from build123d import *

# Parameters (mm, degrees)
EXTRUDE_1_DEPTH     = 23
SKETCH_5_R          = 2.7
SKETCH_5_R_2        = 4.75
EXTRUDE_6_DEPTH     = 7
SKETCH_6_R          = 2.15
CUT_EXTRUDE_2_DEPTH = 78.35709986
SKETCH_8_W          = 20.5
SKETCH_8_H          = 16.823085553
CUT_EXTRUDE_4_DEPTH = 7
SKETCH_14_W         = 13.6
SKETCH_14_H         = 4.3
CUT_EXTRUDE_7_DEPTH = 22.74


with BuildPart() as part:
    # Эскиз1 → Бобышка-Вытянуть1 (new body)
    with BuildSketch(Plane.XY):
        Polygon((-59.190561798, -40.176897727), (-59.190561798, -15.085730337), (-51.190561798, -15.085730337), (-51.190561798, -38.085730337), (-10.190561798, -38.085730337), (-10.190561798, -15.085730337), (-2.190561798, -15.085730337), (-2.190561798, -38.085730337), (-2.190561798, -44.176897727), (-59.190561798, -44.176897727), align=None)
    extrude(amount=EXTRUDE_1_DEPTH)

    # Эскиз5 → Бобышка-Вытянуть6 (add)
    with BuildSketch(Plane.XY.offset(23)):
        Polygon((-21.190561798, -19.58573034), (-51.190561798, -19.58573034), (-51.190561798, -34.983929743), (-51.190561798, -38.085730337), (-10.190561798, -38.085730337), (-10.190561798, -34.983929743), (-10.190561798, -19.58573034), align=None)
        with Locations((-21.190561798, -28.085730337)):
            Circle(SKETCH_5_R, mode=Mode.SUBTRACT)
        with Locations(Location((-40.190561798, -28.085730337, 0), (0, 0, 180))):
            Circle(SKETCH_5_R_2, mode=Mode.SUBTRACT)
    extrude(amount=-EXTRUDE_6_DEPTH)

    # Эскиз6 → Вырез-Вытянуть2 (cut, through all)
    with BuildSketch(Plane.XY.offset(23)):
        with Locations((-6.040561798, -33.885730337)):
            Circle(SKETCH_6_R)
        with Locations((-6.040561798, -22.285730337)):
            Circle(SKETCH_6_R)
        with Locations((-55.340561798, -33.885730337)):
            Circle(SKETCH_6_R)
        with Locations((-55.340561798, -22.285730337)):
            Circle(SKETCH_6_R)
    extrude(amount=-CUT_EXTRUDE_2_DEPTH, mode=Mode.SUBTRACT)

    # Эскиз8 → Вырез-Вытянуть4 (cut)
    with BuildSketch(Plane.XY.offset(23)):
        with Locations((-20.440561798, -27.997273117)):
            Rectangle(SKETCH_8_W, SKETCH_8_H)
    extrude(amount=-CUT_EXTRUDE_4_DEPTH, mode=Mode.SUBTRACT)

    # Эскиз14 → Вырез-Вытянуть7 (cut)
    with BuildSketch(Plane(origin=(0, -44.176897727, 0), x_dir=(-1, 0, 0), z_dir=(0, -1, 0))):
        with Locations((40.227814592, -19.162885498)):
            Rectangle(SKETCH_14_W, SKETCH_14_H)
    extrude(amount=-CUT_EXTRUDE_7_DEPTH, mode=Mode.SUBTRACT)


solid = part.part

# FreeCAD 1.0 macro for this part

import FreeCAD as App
import Part
import Sketcher
from FreeCAD import Vector
Q = App.Units.Quantity

doc = App.newDocument("Part")
body = doc.addObject("PartDesign::Body", "Body")

# Sketch on XY plane
sketch1 = doc.addObject("Sketcher::SketchObject", "Sketch")
body.addObject(sketch1)
sketch1.AttachmentSupport = (doc.XY_Plane, [""])
sketch1.MapMode = "FlatFace"
sketch1.addGeometry(Part.LineSegment(Vector(-59.190562, -15.08573, 0), Vector(-59.190562, -44.176898, 0)), False)
sketch1.addGeometry(Part.LineSegment(Vector(-59.190562, -44.176898, 0), Vector(-2.190562, -44.176898, 0)), False)
sketch1.addGeometry(Part.LineSegment(Vector(-2.190562, -44.176898, 0), Vector(-2.190562, -15.08573, 0)), False)
sketch1.addGeometry(Part.LineSegment(Vector(-2.190562, -15.08573, 0), Vector(-10.190562, -15.08573, 0)), False)
sketch1.addGeometry(Part.LineSegment(Vector(-10.190562, -15.08573, 0), Vector(-10.190562, -38.08573, 0)), False)
sketch1.addGeometry(Part.LineSegment(Vector(-10.190562, -38.08573, 0), Vector(-51.190562, -38.08573, 0)), False)
sketch1.addGeometry(Part.LineSegment(Vector(-51.190562, -38.08573, 0), Vector(-51.190562, -15.08573, 0)), False)
sketch1.addGeometry(Part.LineSegment(Vector(-51.190562, -15.08573, 0), Vector(-59.190562, -15.08573, 0)), False)
sketch1.addConstraint(Sketcher.Constraint("Coincident", 0, 2, 1, 1))
sketch1.addConstraint(Sketcher.Constraint("Coincident", 1, 2, 2, 1))
sketch1.addConstraint(Sketcher.Constraint("Coincident", 2, 2, 3, 1))
sketch1.addConstraint(Sketcher.Constraint("Coincident", 3, 2, 4, 1))
sketch1.addConstraint(Sketcher.Constraint("Coincident", 4, 2, 5, 1))
sketch1.addConstraint(Sketcher.Constraint("Coincident", 5, 2, 6, 1))
sketch1.addConstraint(Sketcher.Constraint("Coincident", 6, 2, 7, 1))
sketch1.addConstraint(Sketcher.Constraint("Coincident", 7, 2, 0, 1))
sketch1.addConstraint(Sketcher.Constraint("Vertical", 0))
sketch1.addConstraint(Sketcher.Constraint("Horizontal", 1))
sketch1.addConstraint(Sketcher.Constraint("Vertical", 2))
sketch1.addConstraint(Sketcher.Constraint("Horizontal", 3))
sketch1.addConstraint(Sketcher.Constraint("Vertical", 4))
sketch1.addConstraint(Sketcher.Constraint("Horizontal", 5))
sketch1.addConstraint(Sketcher.Constraint("Vertical", 6))
sketch1.addConstraint(Sketcher.Constraint("Horizontal", 7))
sketch1.addConstraint(Sketcher.Constraint("Horizontal", 3, 2, 6, 2))
sketch1.addConstraint(Sketcher.Constraint("Equal", 3, 7))
sketch1.addConstraint(Sketcher.Constraint("DistanceX", 1, 1, 1, 2, Q("57 mm")))
sketch1.addConstraint(Sketcher.Constraint("DistanceX", 3, 2, 3, 1, Q("8 mm")))
sketch1.addConstraint(Sketcher.Constraint("DistanceY", 4, 2, 4, 1, Q("23 mm")))
sketch1.addConstraint(Sketcher.Constraint("DistanceY", 0, 2, 0, 1, Q("29.091167 mm")))
sketch1.addConstraint(Sketcher.Constraint("DistanceX", 0, 2, -1, 1, Q("59.190562 mm")))
sketch1.addConstraint(Sketcher.Constraint("DistanceY", 2, 2, -1, 1, Q("15.08573 mm")))
pad1 = doc.addObject("PartDesign::Pad", "Pad")
body.addObject(pad1)
pad1.Profile = sketch1
pad1.Length = 23

# Sketch on XY plane
sketch2 = doc.addObject("Sketcher::SketchObject", "Sketch001")
body.addObject(sketch2)
sketch2.AttachmentSupport = (doc.XY_Plane, [""])
sketch2.MapMode = "FlatFace"
sketch2.AttachmentOffset = App.Placement(Vector(0, 0, 23), App.Rotation())
sketch2.addGeometry(Part.LineSegment(Vector(-51.190562, -19.58573, 0), Vector(-51.190562, -38.08573, 0)), False)
sketch2.addGeometry(Part.LineSegment(Vector(-51.190562, -38.08573, 0), Vector(-10.190562, -38.08573, 0)), False)
sketch2.addGeometry(Part.LineSegment(Vector(-10.190562, -38.08573, 0), Vector(-10.190562, -19.58573, 0)), False)
sketch2.addGeometry(Part.LineSegment(Vector(-10.190562, -19.58573, 0), Vector(-51.190562, -19.58573, 0)), False)
sketch2.addGeometry(Part.Circle(Vector(-40.190562, -28.08573, 0), Vector(0, 0, 1), 4.75), False)
sketch2.addGeometry(Part.Circle(Vector(-21.190562, -28.08573, 0), Vector(0, 0, 1), 2.7), False)
sketch2.addConstraint(Sketcher.Constraint("Coincident", 0, 2, 1, 1))
sketch2.addConstraint(Sketcher.Constraint("Coincident", 1, 2, 2, 1))
sketch2.addConstraint(Sketcher.Constraint("Coincident", 2, 2, 3, 1))
sketch2.addConstraint(Sketcher.Constraint("Coincident", 3, 2, 0, 1))
sketch2.addConstraint(Sketcher.Constraint("Vertical", 0))
sketch2.addConstraint(Sketcher.Constraint("Horizontal", 1))
sketch2.addConstraint(Sketcher.Constraint("Vertical", 2))
sketch2.addConstraint(Sketcher.Constraint("Horizontal", 3))
sketch2.addConstraint(Sketcher.Constraint("Horizontal", 4, 3, 5, 3))
sketch2.addConstraint(Sketcher.Constraint("Diameter", 4, Q("9.5 mm")))
sketch2.addConstraint(Sketcher.Constraint("Diameter", 5, Q("5.4 mm")))
sketch2.addConstraint(Sketcher.Constraint("DistanceX", 1, 1, 1, 2, Q("41 mm")))
sketch2.addConstraint(Sketcher.Constraint("DistanceY", 0, 2, 0, 1, Q("18.5 mm")))
sketch2.addConstraint(Sketcher.Constraint("DistanceX", 4, 3, 5, 3, Q("19 mm")))
sketch2.addConstraint(Sketcher.Constraint("DistanceX", 0, 2, 4, 3, Q("11 mm")))
sketch2.addConstraint(Sketcher.Constraint("DistanceY", 0, 2, 4, 3, Q("10 mm")))
sketch2.addConstraint(Sketcher.Constraint("DistanceX", 4, 3, -1, 1, Q("40.190562 mm")))
sketch2.addConstraint(Sketcher.Constraint("DistanceY", 4, 3, -1, 1, Q("28.08573 mm")))
pad2 = doc.addObject("PartDesign::Pad", "Pad001")
body.addObject(pad2)
pad2.Profile = sketch2
pad2.Length = 7
pad2.Reversed = True

# Sketch on XY plane
sketch3 = doc.addObject("Sketcher::SketchObject", "Sketch002")
body.addObject(sketch3)
sketch3.AttachmentSupport = (doc.XY_Plane, [""])
sketch3.MapMode = "FlatFace"
sketch3.AttachmentOffset = App.Placement(Vector(0, 0, 23), App.Rotation())
sketch3.addGeometry(Part.Circle(Vector(-6.040562, -33.88573, 0), Vector(0, 0, 1), 2.15), False)
sketch3.addGeometry(Part.Circle(Vector(-6.040562, -22.28573, 0), Vector(0, 0, 1), 2.15), False)
sketch3.addGeometry(Part.Circle(Vector(-55.340562, -33.88573, 0), Vector(0, 0, 1), 2.15), False)
sketch3.addGeometry(Part.Circle(Vector(-55.340562, -22.28573, 0), Vector(0, 0, 1), 2.15), False)
sketch3.addConstraint(Sketcher.Constraint("Equal", 0, 1))
sketch3.addConstraint(Sketcher.Constraint("Equal", 1, 2))
sketch3.addConstraint(Sketcher.Constraint("Equal", 2, 3))
sketch3.addConstraint(Sketcher.Constraint("Horizontal", 0, 3, 2, 3))
sketch3.addConstraint(Sketcher.Constraint("Horizontal", 1, 3, 3, 3))
sketch3.addConstraint(Sketcher.Constraint("Vertical", 0, 3, 1, 3))
sketch3.addConstraint(Sketcher.Constraint("Vertical", 2, 3, 3, 3))
sketch3.addConstraint(Sketcher.Constraint("Diameter", 0, Q("4.3 mm")))
sketch3.addConstraint(Sketcher.Constraint("DistanceY", 0, 3, 1, 3, Q("11.6 mm")))
sketch3.addConstraint(Sketcher.Constraint("DistanceX", 2, 3, 0, 3, Q("49.3 mm")))
sketch3.addConstraint(Sketcher.Constraint("DistanceX", 0, 3, -1, 1, Q("6.040562 mm")))
sketch3.addConstraint(Sketcher.Constraint("DistanceY", 0, 3, -1, 1, Q("33.88573 mm")))
pocket1 = doc.addObject("PartDesign::Pocket", "Pocket")
body.addObject(pocket1)
pocket1.Profile = sketch3
pocket1.Type = "ThroughAll"

# Sketch on XY plane
sketch4 = doc.addObject("Sketcher::SketchObject", "Sketch003")
body.addObject(sketch4)
sketch4.AttachmentSupport = (doc.XY_Plane, [""])
sketch4.MapMode = "FlatFace"
sketch4.AttachmentOffset = App.Placement(Vector(0, 0, 23), App.Rotation())
sketch4.addGeometry(Part.LineSegment(Vector(-30.690562, -19.58573, 0), Vector(-30.690562, -36.408816, 0)), False)
sketch4.addGeometry(Part.LineSegment(Vector(-30.690562, -36.408816, 0), Vector(-10.190562, -36.408816, 0)), False)
sketch4.addGeometry(Part.LineSegment(Vector(-10.190562, -36.408816, 0), Vector(-10.190562, -19.58573, 0)), False)
sketch4.addGeometry(Part.LineSegment(Vector(-10.190562, -19.58573, 0), Vector(-30.690562, -19.58573, 0)), False)
sketch4.addConstraint(Sketcher.Constraint("Coincident", 0, 2, 1, 1))
sketch4.addConstraint(Sketcher.Constraint("Coincident", 1, 2, 2, 1))
sketch4.addConstraint(Sketcher.Constraint("Coincident", 2, 2, 3, 1))
sketch4.addConstraint(Sketcher.Constraint("Coincident", 3, 2, 0, 1))
sketch4.addConstraint(Sketcher.Constraint("Vertical", 0))
sketch4.addConstraint(Sketcher.Constraint("Horizontal", 1))
sketch4.addConstraint(Sketcher.Constraint("Vertical", 2))
sketch4.addConstraint(Sketcher.Constraint("Horizontal", 3))
sketch4.addConstraint(Sketcher.Constraint("DistanceX", 1, 1, 1, 2, Q("20.5 mm")))
sketch4.addConstraint(Sketcher.Constraint("DistanceY", 0, 2, 0, 1, Q("16.823086 mm")))
sketch4.addConstraint(Sketcher.Constraint("DistanceX", 0, 2, -1, 1, Q("30.690562 mm")))
sketch4.addConstraint(Sketcher.Constraint("DistanceY", 2, 2, -1, 1, Q("19.58573 mm")))
pocket2 = doc.addObject("PartDesign::Pocket", "Pocket001")
body.addObject(pocket2)
pocket2.Profile = sketch4
pocket2.Length = 7

# Sketch on XZ plane
sketch5 = doc.addObject("Sketcher::SketchObject", "Sketch004")
body.addObject(sketch5)
sketch5.AttachmentSupport = (doc.XZ_Plane, [""])
sketch5.MapMode = "FlatFace"
sketch5.AttachmentOffset = App.Placement(Vector(0, 0, 44.176898), App.Rotation())
sketch5.addGeometry(Part.LineSegment(Vector(-33.427815, 17.012885, 0), Vector(-33.427815, 21.312885, 0)), False)
sketch5.addGeometry(Part.LineSegment(Vector(-33.427815, 21.312885, 0), Vector(-47.027815, 21.312885, 0)), False)
sketch5.addGeometry(Part.LineSegment(Vector(-47.027815, 21.312885, 0), Vector(-47.027815, 17.012885, 0)), False)
sketch5.addGeometry(Part.LineSegment(Vector(-47.027815, 17.012885, 0), Vector(-33.427815, 17.012885, 0)), False)
sketch5.addConstraint(Sketcher.Constraint("Coincident", 0, 2, 1, 1))
sketch5.addConstraint(Sketcher.Constraint("Coincident", 1, 2, 2, 1))
sketch5.addConstraint(Sketcher.Constraint("Coincident", 2, 2, 3, 1))
sketch5.addConstraint(Sketcher.Constraint("Coincident", 3, 2, 0, 1))
sketch5.addConstraint(Sketcher.Constraint("Vertical", 0))
sketch5.addConstraint(Sketcher.Constraint("Horizontal", 1))
sketch5.addConstraint(Sketcher.Constraint("Vertical", 2))
sketch5.addConstraint(Sketcher.Constraint("Horizontal", 3))
sketch5.addConstraint(Sketcher.Constraint("DistanceX", 1, 2, 1, 1, Q("13.6 mm")))
sketch5.addConstraint(Sketcher.Constraint("DistanceY", 0, 1, 0, 2, Q("4.3 mm")))
sketch5.addConstraint(Sketcher.Constraint("DistanceX", 0, 2, -1, 1, Q("33.427815 mm")))
sketch5.addConstraint(Sketcher.Constraint("DistanceY", -1, 1, 0, 2, Q("21.312885 mm")))
pocket3 = doc.addObject("PartDesign::Pocket", "Pocket002")
body.addObject(pocket3)
pocket3.Profile = sketch5
pocket3.Length = 22.74

doc.recompute()
